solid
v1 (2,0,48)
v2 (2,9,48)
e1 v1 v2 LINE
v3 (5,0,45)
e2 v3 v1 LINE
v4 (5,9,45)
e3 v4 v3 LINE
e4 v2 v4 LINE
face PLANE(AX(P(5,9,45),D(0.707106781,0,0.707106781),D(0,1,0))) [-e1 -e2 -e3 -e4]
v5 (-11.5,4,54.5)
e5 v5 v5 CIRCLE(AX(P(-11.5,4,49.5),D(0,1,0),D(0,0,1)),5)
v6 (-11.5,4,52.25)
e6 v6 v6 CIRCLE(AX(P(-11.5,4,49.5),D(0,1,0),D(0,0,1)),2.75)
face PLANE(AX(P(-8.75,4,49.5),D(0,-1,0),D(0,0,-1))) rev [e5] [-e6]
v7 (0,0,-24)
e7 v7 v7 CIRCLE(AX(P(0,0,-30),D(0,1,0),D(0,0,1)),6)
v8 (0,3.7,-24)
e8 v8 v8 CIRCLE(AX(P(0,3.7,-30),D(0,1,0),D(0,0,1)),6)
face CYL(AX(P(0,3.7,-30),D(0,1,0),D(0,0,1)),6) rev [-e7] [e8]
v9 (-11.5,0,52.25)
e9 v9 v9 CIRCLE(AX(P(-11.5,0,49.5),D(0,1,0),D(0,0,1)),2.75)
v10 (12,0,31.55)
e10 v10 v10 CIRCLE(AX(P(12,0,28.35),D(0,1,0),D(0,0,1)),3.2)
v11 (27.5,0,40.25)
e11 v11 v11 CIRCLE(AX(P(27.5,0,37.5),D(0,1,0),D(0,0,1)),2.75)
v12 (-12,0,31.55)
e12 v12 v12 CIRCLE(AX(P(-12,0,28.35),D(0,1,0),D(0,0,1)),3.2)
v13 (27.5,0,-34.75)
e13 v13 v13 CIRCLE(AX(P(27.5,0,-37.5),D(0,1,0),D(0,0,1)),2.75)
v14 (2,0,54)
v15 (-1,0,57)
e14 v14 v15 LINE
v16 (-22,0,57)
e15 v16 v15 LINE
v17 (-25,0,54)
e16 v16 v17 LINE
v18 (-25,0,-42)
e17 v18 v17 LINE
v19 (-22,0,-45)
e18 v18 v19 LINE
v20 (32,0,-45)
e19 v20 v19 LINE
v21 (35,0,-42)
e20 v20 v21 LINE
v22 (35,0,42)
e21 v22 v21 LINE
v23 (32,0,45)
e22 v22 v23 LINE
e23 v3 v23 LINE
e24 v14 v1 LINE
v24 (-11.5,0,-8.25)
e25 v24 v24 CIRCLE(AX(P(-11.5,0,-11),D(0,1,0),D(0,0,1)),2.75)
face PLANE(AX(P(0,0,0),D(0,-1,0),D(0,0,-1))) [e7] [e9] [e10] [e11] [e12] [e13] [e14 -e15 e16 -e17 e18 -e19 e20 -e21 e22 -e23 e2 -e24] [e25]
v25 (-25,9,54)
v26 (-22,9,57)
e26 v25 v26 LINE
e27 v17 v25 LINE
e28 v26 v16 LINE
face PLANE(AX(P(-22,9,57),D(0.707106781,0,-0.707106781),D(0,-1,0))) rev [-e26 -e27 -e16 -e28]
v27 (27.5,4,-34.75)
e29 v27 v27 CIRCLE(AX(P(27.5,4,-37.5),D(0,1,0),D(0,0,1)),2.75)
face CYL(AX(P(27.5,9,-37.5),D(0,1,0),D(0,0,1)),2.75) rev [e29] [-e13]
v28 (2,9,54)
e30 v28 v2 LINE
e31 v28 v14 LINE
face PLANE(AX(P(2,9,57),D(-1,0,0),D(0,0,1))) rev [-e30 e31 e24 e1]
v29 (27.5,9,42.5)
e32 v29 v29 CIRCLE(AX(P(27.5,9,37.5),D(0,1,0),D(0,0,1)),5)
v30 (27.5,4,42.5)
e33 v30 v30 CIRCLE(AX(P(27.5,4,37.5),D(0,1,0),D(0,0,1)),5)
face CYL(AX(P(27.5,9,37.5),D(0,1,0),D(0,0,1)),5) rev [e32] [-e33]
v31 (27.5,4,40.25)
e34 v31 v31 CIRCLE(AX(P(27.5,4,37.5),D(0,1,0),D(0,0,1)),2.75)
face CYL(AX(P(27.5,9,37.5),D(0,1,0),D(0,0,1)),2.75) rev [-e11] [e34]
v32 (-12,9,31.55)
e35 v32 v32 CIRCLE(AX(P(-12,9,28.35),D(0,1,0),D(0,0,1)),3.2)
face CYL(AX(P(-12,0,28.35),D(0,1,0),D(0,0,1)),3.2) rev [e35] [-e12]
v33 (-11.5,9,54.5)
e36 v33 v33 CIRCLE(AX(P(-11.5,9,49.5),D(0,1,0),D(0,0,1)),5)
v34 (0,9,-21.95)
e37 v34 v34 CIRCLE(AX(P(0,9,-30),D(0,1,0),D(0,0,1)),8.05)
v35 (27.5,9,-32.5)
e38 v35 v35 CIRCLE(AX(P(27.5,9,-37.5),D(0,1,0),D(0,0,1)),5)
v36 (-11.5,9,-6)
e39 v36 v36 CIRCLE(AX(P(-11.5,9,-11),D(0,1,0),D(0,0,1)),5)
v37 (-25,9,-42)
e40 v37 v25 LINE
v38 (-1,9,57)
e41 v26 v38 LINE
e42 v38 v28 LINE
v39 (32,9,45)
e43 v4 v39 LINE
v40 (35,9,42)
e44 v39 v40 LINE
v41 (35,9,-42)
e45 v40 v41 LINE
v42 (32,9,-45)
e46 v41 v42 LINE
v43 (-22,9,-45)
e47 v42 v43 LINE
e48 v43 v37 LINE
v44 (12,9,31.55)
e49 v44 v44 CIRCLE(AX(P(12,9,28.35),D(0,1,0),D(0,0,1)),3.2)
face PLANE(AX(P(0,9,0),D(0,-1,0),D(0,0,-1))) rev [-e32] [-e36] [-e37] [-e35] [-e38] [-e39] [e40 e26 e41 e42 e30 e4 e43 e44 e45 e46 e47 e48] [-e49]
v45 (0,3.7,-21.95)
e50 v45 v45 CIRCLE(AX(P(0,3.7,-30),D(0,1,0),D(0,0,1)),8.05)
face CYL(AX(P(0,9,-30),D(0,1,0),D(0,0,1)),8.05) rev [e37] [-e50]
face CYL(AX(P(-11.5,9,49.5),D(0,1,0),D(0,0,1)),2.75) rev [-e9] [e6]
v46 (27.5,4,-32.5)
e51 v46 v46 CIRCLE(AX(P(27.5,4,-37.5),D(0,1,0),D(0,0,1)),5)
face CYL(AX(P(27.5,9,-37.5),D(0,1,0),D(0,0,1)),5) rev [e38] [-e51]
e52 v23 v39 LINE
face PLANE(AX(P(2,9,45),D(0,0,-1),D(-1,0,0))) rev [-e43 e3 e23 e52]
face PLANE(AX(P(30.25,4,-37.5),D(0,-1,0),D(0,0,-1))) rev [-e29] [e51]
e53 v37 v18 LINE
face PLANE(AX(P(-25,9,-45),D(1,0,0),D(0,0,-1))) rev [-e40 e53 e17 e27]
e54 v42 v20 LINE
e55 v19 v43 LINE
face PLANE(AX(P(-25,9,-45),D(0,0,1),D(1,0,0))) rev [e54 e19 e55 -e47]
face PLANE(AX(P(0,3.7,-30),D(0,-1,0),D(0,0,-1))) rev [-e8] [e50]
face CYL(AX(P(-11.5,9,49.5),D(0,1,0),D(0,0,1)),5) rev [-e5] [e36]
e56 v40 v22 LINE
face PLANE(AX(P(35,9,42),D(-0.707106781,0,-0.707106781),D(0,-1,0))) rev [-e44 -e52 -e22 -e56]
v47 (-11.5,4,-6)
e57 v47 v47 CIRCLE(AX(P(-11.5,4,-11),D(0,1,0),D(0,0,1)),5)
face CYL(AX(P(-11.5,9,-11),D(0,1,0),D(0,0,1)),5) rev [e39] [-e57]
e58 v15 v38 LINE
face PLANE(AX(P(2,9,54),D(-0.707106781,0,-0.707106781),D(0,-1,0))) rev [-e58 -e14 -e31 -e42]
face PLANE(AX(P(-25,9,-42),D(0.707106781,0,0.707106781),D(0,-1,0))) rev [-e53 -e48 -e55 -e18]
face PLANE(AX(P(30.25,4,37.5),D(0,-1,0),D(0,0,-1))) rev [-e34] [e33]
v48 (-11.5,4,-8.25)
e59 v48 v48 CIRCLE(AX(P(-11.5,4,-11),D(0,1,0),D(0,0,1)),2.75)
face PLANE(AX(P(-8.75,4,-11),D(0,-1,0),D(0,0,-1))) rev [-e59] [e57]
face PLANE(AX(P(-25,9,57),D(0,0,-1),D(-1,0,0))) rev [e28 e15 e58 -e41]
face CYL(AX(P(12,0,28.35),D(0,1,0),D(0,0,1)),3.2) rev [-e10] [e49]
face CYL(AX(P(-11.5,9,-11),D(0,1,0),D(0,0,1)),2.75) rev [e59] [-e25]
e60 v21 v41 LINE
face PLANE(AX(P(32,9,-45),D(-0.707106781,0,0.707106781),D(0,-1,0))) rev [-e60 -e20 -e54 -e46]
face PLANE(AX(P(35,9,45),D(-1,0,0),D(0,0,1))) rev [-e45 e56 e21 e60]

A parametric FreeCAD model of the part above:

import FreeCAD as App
import Part
import Sketcher
from FreeCAD import Vector
Q = App.Units.Quantity


def edges_at(feature, points):
    """Names of the edges that pass closest to the given points."""
    edges = feature.Shape.Edges
    near = lambda p: min(range(len(edges)), key=lambda i: edges[i].distToShape(Part.Vertex(*p))[0])
    return sorted({f"Edge{near(p) + 1}" for p in points})

doc = App.newDocument("Part")
params = doc.addObject("Spreadsheet::Sheet", "Params")
for row, (alias, value) in enumerate([
    ("sketch1_width", "33 mm"),
    ("sketch1_width2", "60 mm"),
    ("sketch1_height", "90 mm"),
    ("sketch1_height2", "102 mm"),
    ("pad1_length", "9 mm"),
    ("sketch2_diameter", "5.5 mm"),
    ("hole_diameter", "5.5 mm"),
    ("hole_cbore_diameter", "10 mm"),
    ("hole_cbore_depth", "5 mm"),
    ("sketch3_diameter", "16.1 mm"),
    ("hole2_diameter", "16.1 mm"),
    ("hole2_depth", "5.3 mm"),
    ("sketch4_diameter", "12 mm"),
    ("hole3_diameter", "12 mm"),
    ("sketch5_diameter", "6.4 mm"),
    ("chamfer_size", "3 mm"),
], start=1):
    params.set(f"A{row}", alias)
    params.set(f"B{row}", "=" + value)
    params.setAlias(f"B{row}", alias)

body = doc.addObject("PartDesign::Body", "Body")

# Sketch on XZ plane
sketch1 = doc.addObject("Sketcher::SketchObject", "Sketch")
body.addObject(sketch1)
sketch1.AttachmentSupport = (doc.XZ_Plane, [""])
sketch1.MapMode = "FlatFace"
sketch1.addGeometry([
    Part.LineSegment(Vector(2, 45, 0), Vector(35, 45, 0)),  # 0
    Part.LineSegment(Vector(35, 45, 0), Vector(35, -45, 0)),  # 1
    Part.LineSegment(Vector(35, -45, 0), Vector(-25, -45, 0)),  # 2
    Part.LineSegment(Vector(-25, -45, 0), Vector(-25, 57, 0)),  # 3
    Part.LineSegment(Vector(-25, 57, 0), Vector(2, 57, 0)),  # 4
    Part.LineSegment(Vector(2, 57, 0), Vector(2, 45, 0)),  # 5
], False)
sketch1.addConstraint([
    Sketcher.Constraint("Coincident", 0, 2, 1, 1),
    Sketcher.Constraint("Coincident", 1, 2, 2, 1),
    Sketcher.Constraint("Coincident", 2, 2, 3, 1),
    Sketcher.Constraint("Coincident", 3, 2, 4, 1),
    Sketcher.Constraint("Coincident", 4, 2, 5, 1),
    Sketcher.Constraint("Coincident", 5, 2, 0, 1),
    Sketcher.Constraint("Horizontal", 0),
    Sketcher.Constraint("Vertical", 1),
    Sketcher.Constraint("Horizontal", 2),
    Sketcher.Constraint("Vertical", 3),
    Sketcher.Constraint("Horizontal", 4),
    Sketcher.Constraint("Vertical", 5),
    Sketcher.Constraint("DistanceX", 0, 1, 0, 2, Q("33 mm")),
    Sketcher.Constraint("DistanceX", 2, 2, 2, 1, Q("60 mm")),
    Sketcher.Constraint("DistanceY", 1, 2, 1, 1, Q("90 mm")),
    Sketcher.Constraint("DistanceY", 3, 1, 3, 2, Q("102 mm")),
    Sketcher.Constraint("DistanceX", -1, 1, 0, 2, Q("35 mm")),
    Sketcher.Constraint("DistanceY", -1, 1, 0, 2, Q("45 mm")),
])
sketch1.setExpression("Constraints[12]", "Params.sketch1_width")
sketch1.setExpression("Constraints[13]", "Params.sketch1_width2")
sketch1.setExpression("Constraints[14]", "Params.sketch1_height")
sketch1.setExpression("Constraints[15]", "Params.sketch1_height2")
pad1 = doc.addObject("PartDesign::Pad", "Pad")
body.addObject(pad1)
pad1.Profile = sketch1
pad1.setExpression("Length", "Params.pad1_length")
pad1.Reversed = True

# Sketch on XZ plane
sketch2 = doc.addObject("Sketcher::SketchObject", "Sketch001")
body.addObject(sketch2)
sketch2.AttachmentSupport = (doc.XZ_Plane, [""])
sketch2.MapMode = "FlatFace"
sketch2.AttachmentOffset = App.Placement(Vector(0, 0, -9), App.Rotation())
sketch2.addGeometry([
    Part.Circle(Vector(27.5, -37.5, 0), Vector(0, 0, 1), 2.8),
    Part.Circle(Vector(27.5, 37.5, 0), Vector(0, 0, 1), 2.8),
    Part.Circle(Vector(-11.5, -11, 0), Vector(0, 0, 1), 2.8),
    Part.Circle(Vector(-11.5, 49.5, 0), Vector(0, 0, 1), 2.8),
], False)
sketch2.addConstraint([
    Sketcher.Constraint("Equal", 0, 1),
    Sketcher.Constraint("Equal", 1, 2),
    Sketcher.Constraint("Equal", 2, 3),
    Sketcher.Constraint("Symmetric", 0, 3, 1, 3, -1),
    Sketcher.Constraint("Vertical", 2, 3, 3, 3),
    Sketcher.Constraint("Diameter", 0, Q("5.5 mm")),
    Sketcher.Constraint("DistanceY", 2, 3, -1, 1, Q("11 mm")),
    Sketcher.Constraint("DistanceY", 0, 3, 1, 3, Q("75 mm")),
    Sketcher.Constraint("DistanceX", 2, 3, 0, 3, Q("39 mm")),
    Sketcher.Constraint("DistanceY", 1, 3, 3, 3, Q("12 mm")),
    Sketcher.Constraint("DistanceX", -1, 1, 0, 3, Q("27.5 mm")),
])
sketch2.setExpression("Constraints[5]", "Params.sketch2_diameter")
doc.recompute()
hole = doc.addObject("PartDesign::Hole", "Hole")
body.addObject(hole)
hole.Profile = sketch2
hole.ThreadType = "None"
hole.setExpression("Diameter", "Params.hole_diameter")
hole.DepthType = "ThroughAll"
hole.HoleCutType = "Counterbore"
hole.setExpression("HoleCutDiameter", "Params.hole_cbore_diameter")
hole.setExpression("HoleCutDepth", "Params.hole_cbore_depth")
hole.Reversed = True

# Sketch on XZ plane
sketch3 = doc.addObject("Sketcher::SketchObject", "Sketch002")
body.addObject(sketch3)
sketch3.AttachmentSupport = (doc.XZ_Plane, [""])
sketch3.MapMode = "FlatFace"
sketch3.AttachmentOffset = App.Placement(Vector(0, 0, -9), App.Rotation())
sketch3.addGeometry(Part.Circle(Vector(0, -30, 0), Vector(0, 0, 1), 8), False)
sketch3.addConstraint([
    Sketcher.Constraint("PointOnObject", 0, 3, -2),
    Sketcher.Constraint("Diameter", 0, Q("16.1 mm")),
    Sketcher.Constraint("DistanceY", 0, 3, -1, 1, Q("30 mm")),
])
sketch3.setExpression("Constraints[1]", "Params.sketch3_diameter")
doc.recompute()
hole2 = doc.addObject("PartDesign::Hole", "Hole001")
body.addObject(hole2)
hole2.Profile = sketch3
hole2.ThreadType = "None"
hole2.setExpression("Diameter", "Params.hole2_diameter")
hole2.DepthType = "Dimension"
hole2.setExpression("Depth", "Params.hole2_depth")
hole2.DrillPoint = "Flat"
hole2.Reversed = True

# Sketch on XZ plane
sketch4 = doc.addObject("Sketcher::SketchObject", "Sketch003")
body.addObject(sketch4)
sketch4.AttachmentSupport = (doc.XZ_Plane, [""])
sketch4.MapMode = "FlatFace"
sketch4.AttachmentOffset = App.Placement(Vector(0, 0, -3.7), App.Rotation())
sketch4.addGeometry(Part.Circle(Vector(0, -30, 0), Vector(0, 0, 1), 6), False)
sketch4.addConstraint([
    Sketcher.Constraint("PointOnObject", 0, 3, -2),
    Sketcher.Constraint("Diameter", 0, Q("12 mm")),
    Sketcher.Constraint("DistanceY", 0, 3, -1, 1, Q("30 mm")),
])
sketch4.setExpression("Constraints[1]", "Params.sketch4_diameter")
doc.recompute()
hole3 = doc.addObject("PartDesign::Hole", "Hole002")
body.addObject(hole3)
hole3.Profile = sketch4
hole3.ThreadType = "None"
hole3.setExpression("Diameter", "Params.hole3_diameter")
hole3.DepthType = "ThroughAll"
hole3.Reversed = True

# Sketch on XZ plane
sketch5 = doc.addObject("Sketcher::SketchObject", "Sketch004")
body.addObject(sketch5)
sketch5.AttachmentSupport = (doc.XZ_Plane, [""])
sketch5.MapMode = "FlatFace"
sketch5.AttachmentOffset = App.Placement(Vector(0, 0, -9), App.Rotation())
sketch5.addGeometry([
    Part.Circle(Vector(12, 28.4, 0), Vector(0, 0, 1), 3.2),
    Part.Circle(Vector(-12, 28.4, 0), Vector(0, 0, 1), 3.2),
], False)
sketch5.addConstraint([
    Sketcher.Constraint("Equal", 0, 1),
    Sketcher.Constraint("Symmetric", 0, 3, 1, 3, -2),
    Sketcher.Constraint("Diameter", 0, Q("6.4 mm")),
    Sketcher.Constraint("DistanceX", -1, 1, 0, 3, Q("12 mm")),
    Sketcher.Constraint("DistanceY", -1, 1, 0, 3, Q("28.35 mm")),
])
sketch5.setExpression("Constraints[2]", "Params.sketch5_diameter")
pocket1 = doc.addObject("PartDesign::Pocket", "Pocket")
body.addObject(pocket1)
pocket1.Profile = sketch5
pocket1.Type = "ThroughAll"
pocket1.Reversed = True
doc.recompute()

chamfer = doc.addObject("PartDesign::Chamfer", "Chamfer")
body.addObject(chamfer)
chamfer.Base = (pocket1, edges_at(pocket1, [
    (35, 4.5, 45),
    (2, 4.5, 45),
    (2, 4.5, 57),
    (-25, 4.5, 57),
    (-25, 4.5, -45),
    (35, 4.5, -45),
]))
chamfer.setExpression("Size", "Params.chamfer_size")

doc.recompute()
